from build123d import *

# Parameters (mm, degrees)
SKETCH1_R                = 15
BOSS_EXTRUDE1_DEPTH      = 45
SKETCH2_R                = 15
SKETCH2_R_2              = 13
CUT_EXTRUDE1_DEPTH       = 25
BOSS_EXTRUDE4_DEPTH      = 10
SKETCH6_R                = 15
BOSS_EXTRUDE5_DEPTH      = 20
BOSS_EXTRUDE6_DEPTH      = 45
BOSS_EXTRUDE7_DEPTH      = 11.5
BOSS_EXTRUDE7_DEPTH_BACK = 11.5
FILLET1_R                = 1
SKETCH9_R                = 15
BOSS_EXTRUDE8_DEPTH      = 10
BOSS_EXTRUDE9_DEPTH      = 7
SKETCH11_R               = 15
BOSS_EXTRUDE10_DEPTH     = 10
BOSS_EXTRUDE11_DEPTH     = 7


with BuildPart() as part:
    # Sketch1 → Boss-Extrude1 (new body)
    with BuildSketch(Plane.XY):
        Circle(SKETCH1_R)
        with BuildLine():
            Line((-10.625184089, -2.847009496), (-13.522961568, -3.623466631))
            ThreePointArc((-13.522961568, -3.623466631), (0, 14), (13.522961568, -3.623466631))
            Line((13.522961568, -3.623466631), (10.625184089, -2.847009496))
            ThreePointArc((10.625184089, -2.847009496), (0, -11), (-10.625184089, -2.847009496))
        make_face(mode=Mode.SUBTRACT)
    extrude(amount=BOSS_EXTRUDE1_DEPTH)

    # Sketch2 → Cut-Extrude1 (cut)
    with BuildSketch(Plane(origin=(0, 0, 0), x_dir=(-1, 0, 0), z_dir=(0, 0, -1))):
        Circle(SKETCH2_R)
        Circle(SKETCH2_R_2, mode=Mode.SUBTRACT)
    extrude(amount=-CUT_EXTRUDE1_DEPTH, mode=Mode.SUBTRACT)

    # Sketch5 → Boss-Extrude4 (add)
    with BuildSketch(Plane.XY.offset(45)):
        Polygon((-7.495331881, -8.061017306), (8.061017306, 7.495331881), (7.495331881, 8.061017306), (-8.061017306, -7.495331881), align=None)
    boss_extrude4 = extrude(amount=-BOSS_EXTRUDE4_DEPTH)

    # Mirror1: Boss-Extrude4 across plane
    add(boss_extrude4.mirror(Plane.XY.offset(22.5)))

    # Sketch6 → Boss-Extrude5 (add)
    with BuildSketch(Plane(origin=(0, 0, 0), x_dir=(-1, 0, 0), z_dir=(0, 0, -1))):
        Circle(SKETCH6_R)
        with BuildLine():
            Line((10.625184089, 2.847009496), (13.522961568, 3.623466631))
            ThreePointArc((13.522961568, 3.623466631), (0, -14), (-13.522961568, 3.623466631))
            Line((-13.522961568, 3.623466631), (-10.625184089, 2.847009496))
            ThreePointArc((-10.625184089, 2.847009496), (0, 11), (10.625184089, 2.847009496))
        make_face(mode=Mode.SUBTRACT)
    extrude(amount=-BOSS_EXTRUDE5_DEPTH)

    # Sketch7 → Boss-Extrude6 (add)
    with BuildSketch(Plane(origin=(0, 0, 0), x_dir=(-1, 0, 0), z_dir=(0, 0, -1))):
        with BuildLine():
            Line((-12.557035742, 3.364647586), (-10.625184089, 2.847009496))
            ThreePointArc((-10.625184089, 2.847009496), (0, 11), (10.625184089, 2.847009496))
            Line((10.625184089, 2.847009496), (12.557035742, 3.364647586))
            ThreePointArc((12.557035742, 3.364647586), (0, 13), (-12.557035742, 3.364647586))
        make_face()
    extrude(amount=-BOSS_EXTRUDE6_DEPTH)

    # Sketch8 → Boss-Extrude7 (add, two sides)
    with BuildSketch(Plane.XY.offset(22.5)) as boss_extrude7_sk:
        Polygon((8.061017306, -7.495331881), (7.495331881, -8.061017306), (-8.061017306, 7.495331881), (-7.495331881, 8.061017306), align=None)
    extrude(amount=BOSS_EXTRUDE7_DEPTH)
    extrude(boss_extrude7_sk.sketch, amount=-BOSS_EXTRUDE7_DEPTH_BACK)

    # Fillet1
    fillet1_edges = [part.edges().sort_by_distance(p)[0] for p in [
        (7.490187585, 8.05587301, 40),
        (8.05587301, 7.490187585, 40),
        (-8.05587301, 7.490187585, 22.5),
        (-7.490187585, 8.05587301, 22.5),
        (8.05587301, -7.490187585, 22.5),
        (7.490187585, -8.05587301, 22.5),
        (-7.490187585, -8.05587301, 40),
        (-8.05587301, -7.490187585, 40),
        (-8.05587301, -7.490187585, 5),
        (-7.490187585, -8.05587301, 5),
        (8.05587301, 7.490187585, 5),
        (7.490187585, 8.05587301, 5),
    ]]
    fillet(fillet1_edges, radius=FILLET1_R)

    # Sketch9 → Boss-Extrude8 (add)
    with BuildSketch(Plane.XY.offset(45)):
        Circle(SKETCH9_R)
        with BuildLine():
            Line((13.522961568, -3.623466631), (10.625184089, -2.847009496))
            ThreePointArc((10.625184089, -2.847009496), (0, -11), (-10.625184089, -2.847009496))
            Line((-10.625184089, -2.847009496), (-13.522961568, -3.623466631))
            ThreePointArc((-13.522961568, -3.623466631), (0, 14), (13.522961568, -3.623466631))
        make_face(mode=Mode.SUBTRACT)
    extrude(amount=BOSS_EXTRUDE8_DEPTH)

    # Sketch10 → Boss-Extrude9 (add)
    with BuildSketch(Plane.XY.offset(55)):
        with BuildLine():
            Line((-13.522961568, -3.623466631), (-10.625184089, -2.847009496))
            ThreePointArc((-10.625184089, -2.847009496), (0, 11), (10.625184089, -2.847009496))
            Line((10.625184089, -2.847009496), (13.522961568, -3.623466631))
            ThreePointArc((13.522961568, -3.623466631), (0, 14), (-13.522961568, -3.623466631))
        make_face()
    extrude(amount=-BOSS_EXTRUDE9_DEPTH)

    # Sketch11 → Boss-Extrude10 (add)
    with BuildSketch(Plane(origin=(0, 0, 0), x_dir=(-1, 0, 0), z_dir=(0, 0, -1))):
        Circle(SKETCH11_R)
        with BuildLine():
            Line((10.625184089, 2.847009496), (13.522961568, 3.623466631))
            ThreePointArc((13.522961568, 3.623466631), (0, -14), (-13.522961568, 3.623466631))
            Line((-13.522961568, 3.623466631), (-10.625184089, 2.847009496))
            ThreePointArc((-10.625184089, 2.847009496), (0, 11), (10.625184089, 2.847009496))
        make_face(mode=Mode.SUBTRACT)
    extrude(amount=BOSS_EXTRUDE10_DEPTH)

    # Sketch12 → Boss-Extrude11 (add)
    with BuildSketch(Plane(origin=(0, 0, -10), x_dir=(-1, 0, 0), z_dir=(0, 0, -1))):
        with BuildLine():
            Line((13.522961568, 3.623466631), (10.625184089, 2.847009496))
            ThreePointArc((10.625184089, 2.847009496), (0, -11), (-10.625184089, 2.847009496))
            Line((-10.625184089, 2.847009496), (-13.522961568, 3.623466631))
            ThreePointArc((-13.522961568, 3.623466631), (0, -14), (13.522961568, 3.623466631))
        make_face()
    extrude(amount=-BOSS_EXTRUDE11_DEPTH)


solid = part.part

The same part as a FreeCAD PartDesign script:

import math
import FreeCAD as App
import Part
import Sketcher
from FreeCAD import Vector
Q = App.Units.Quantity


def edges_at(feature, points):
    """Names of the edges that pass closest to the given points."""
    edges = feature.Shape.Edges
    near = lambda p: min(range(len(edges)), key=lambda i: edges[i].distToShape(Part.Vertex(*p))[0])
    return sorted({f"Edge{near(p) + 1}" for p in points})


def add_polygon(sketch, points):
    """Adds a closed chain of lines whose ends are joined by coincident constraints."""
    first, n = sketch.GeometryCount, len(points)
    for a, b in zip(points, points[1:] + points[:1]):
        sketch.addGeometry(Part.LineSegment(App.Vector(*a, 0), App.Vector(*b, 0)), False)
    for i in range(n):
        sketch.addConstraint(Sketcher.Constraint("Coincident", first + i, 2, first + (i + 1) % n, 1))

doc = App.newDocument("Part")
params = doc.addObject("Spreadsheet::Sheet", "Params")
for row, (alias, value) in enumerate([
    ("sketch1_diameter", "30 mm"),
    ("sketch1_radius", "11 mm"),
    ("sketch1_radius2", "14 mm"),
    ("pad1_length", "45 mm"),
    ("sketch2_diameter", "30 mm"),
    ("sketch2_diameter2", "26 mm"),
    ("pocket1_length", "25 mm"),
    ("sketch3_length", "22 mm"),
    ("sketch3_length2", "0.8 mm"),
    ("pad2_length", "10 mm"),
    ("sketch4_diameter", "30 mm"),
    ("sketch4_radius", "11 mm"),
    ("sketch4_radius2", "14 mm"),
    ("pad3_length", "20 mm"),
    ("sketch5_radius", "11 mm"),
    ("sketch5_radius2", "13 mm"),
    ("pad4_length", "45 mm"),
    ("sketch6_length", "22 mm"),
    ("sketch6_length2", "0.8 mm"),
    ("pad5_length", "11.5 mm"),
    ("pad5_length2", "11.5 mm"),
    ("fillet_radius", "1 mm"),
    ("sketch7_diameter", "30 mm"),
    ("sketch7_radius", "14 mm"),
    ("sketch7_radius2", "11 mm"),
    ("pad6_length", "10 mm"),
    ("sketch8_radius", "11 mm"),
    ("sketch8_radius2", "14 mm"),
    ("pad7_length", "7 mm"),
    ("sketch9_diameter", "30 mm"),
    ("sketch9_radius", "11 mm"),
    ("sketch9_radius2", "14 mm"),
    ("pad8_length", "10 mm"),
    ("sketch10_radius", "11 mm"),
    ("sketch10_radius2", "14 mm"),
    ("pad9_length", "7 mm"),
], start=1):
    params.set(f"A{row}", alias)
    params.set(f"B{row}", "=" + value)
    params.setAlias(f"B{row}", alias)

body = doc.addObject("PartDesign::Body", "Body")

sketch1 = doc.addObject("Sketcher::SketchObject", "Sketch")
body.addObject(sketch1)
sketch1.AttachmentSupport = (doc.XY_Plane, [""])
sketch1.MapMode = "FlatFace"
sketch1.addGeometry([
    Part.Circle(Vector(0, 0, 0), Vector(0, 0, 1), 15),
    Part.ArcOfCircle(Part.Circle(Vector(0, 0, 0), Vector(0, 0, 1), 11), math.radians(-165), math.radians(-15)),
    Part.LineSegment(Vector(-10.6, -2.8, 0), Vector(-13.5, -3.6, 0)),
    Part.ArcOfCircle(Part.Circle(Vector(0, 0, 0), Vector(0, 0, 1), 14), math.radians(-15), math.radians(195)),
    Part.LineSegment(Vector(13.5, -3.6, 0), Vector(10.6, -2.8, 0)),
], False)
sketch1.addConstraint([
    Sketcher.Constraint("Coincident", 1, 1, 2, 1),
    Sketcher.Constraint("Coincident", 2, 2, 3, 2),
    Sketcher.Constraint("Coincident", 3, 1, 4, 1),
    Sketcher.Constraint("Coincident", 4, 2, 1, 2),
    Sketcher.Constraint("Coincident", 0, 3, -1, 1),
    Sketcher.Constraint("Coincident", 1, 3, -1, 1),
    Sketcher.Constraint("Coincident", 3, 3, -1, 1),
    Sketcher.Constraint("Horizontal", 2, 2, 3, 1),
    Sketcher.Constraint("Horizontal", 1, 1, 4, 2),
    Sketcher.Constraint("Diameter", 0, Q("30 mm")),
    Sketcher.Constraint("Radius", 1, Q("11 mm")),
    Sketcher.Constraint("Radius", 3, Q("14 mm")),
    Sketcher.Constraint("Angle", 2, Q("-165 deg")),
    Sketcher.Constraint("DistanceY", 1, 1, -1, 1, Q("2.847009 mm")),
])
sketch1.setExpression("Constraints[9]", "Params.sketch1_diameter")
sketch1.setExpression("Constraints[10]", "Params.sketch1_radius")
sketch1.setExpression("Constraints[11]", "Params.sketch1_radius2")
pad1 = doc.addObject("PartDesign::Pad", "Pad")
body.addObject(pad1)
pad1.Profile = sketch1
pad1.setExpression("Length", "Params.pad1_length")

sketch2 = doc.addObject("Sketcher::SketchObject", "Sketch001")
body.addObject(sketch2)
sketch2.AttachmentSupport = (doc.XY_Plane, [""])
sketch2.MapMode = "FlatFace"
sketch2.addGeometry([
    Part.Circle(Vector(0, 0, 0), Vector(0, 0, 1), 15),
    Part.Circle(Vector(0, 0, 0), Vector(0, 0, 1), 13),
], False)
sketch2.addConstraint([
    Sketcher.Constraint("Coincident", 0, 3, -1, 1),
    Sketcher.Constraint("Coincident", 1, 3, -1, 1),
    Sketcher.Constraint("Diameter", 0, Q("30 mm")),
    Sketcher.Constraint("Diameter", 1, Q("26 mm")),
])
sketch2.setExpression("Constraints[2]", "Params.sketch2_diameter")
sketch2.setExpression("Constraints[3]", "Params.sketch2_diameter2")
pocket1 = doc.addObject("PartDesign::Pocket", "Pocket")
body.addObject(pocket1)
pocket1.Profile = sketch2
pocket1.setExpression("Length", "Params.pocket1_length")
pocket1.Reversed = True

sketch3 = doc.addObject("Sketcher::SketchObject", "Sketch002")
body.addObject(sketch3)
sketch3.AttachmentSupport = (doc.XY_Plane, [""])
sketch3.MapMode = "FlatFace"
sketch3.AttachmentOffset = App.Placement(Vector(0, 0, 45), App.Rotation())
add_polygon(sketch3, [(-7.5, -8.1), (8.1, 7.5), (7.5, 8.1), (-8.1, -7.5)])
sketch3.addConstraint([
    Sketcher.Constraint("Symmetric", 0, 2, 2, 2, -1, 1),
    Sketcher.Constraint("Symmetric", 1, 2, 3, 2, -1, 1),
    Sketcher.Constraint("Perpendicular", 0, 1),
    Sketcher.Constraint("Angle", 0, Q("45 deg")),
    Sketcher.Constraint("Distance", 0, Q("22 mm")),
    Sketcher.Constraint("Distance", 1, Q("0.8 mm")),
])
sketch3.setExpression("Constraints[8]", "Params.sketch3_length")
sketch3.setExpression("Constraints[9]", "Params.sketch3_length2")
pad2 = doc.addObject("PartDesign::Pad", "Pad001")
body.addObject(pad2)
pad2.Profile = sketch3
pad2.setExpression("Length", "Params.pad2_length")
pad2.Reversed = True
doc.recompute()

datumplane = doc.addObject("PartDesign::Plane", "DatumPlane")
body.addObject(datumplane)
datumplane.AttachmentSupport = (doc.XY_Plane, [""])
datumplane.MapMode = "FlatFace"
datumplane.AttachmentOffset = App.Placement(Vector(0, 0, 22.5), App.Rotation())
mirrored = doc.addObject("PartDesign::Mirrored", "Mirrored")
body.addObject(mirrored)
mirrored.Originals = [pad2]
mirrored.MirrorPlane = (datumplane, [""])
body.Tip = mirrored

sketch4 = doc.addObject("Sketcher::SketchObject", "Sketch003")
body.addObject(sketch4)
sketch4.AttachmentSupport = (doc.XY_Plane, [""])
sketch4.MapMode = "FlatFace"
sketch4.addGeometry([
    Part.Circle(Vector(0, 0, 0), Vector(0, 0, 1), 15),
    Part.ArcOfCircle(Part.Circle(Vector(0, 0, 0), Vector(0, 0, 1), 11), math.radians(15), math.radians(165)),
    Part.LineSegment(Vector(-10.6, 2.8, 0), Vector(-13.5, 3.6, 0)),
    Part.ArcOfCircle(Part.Circle(Vector(0, 0, 0), Vector(0, 0, 1), 14), math.radians(165), math.radians(375)),
    Part.LineSegment(Vector(13.5, 3.6, 0), Vector(10.6, 2.8, 0)),
], False)
sketch4.addConstraint([
    Sketcher.Constraint("Coincident", 1, 2, 2, 1),
    Sketcher.Constraint("Coincident", 2, 2, 3, 1),
    Sketcher.Constraint("Coincident", 3, 2, 4, 1),
    Sketcher.Constraint("Coincident", 4, 2, 1, 1),
    Sketcher.Constraint("Coincident", 0, 3, -1, 1),
    Sketcher.Constraint("Coincident", 1, 3, -1, 1),
    Sketcher.Constraint("Coincident", 3, 3, -1, 1),
    Sketcher.Constraint("Horizontal", 2, 2, 3, 2),
    Sketcher.Constraint("Horizontal", 1, 2, 4, 2),
    Sketcher.Constraint("Diameter", 0, Q("30 mm")),
    Sketcher.Constraint("Radius", 1, Q("11 mm")),
    Sketcher.Constraint("Radius", 3, Q("14 mm")),
    Sketcher.Constraint("Angle", 2, Q("165 deg")),
    Sketcher.Constraint("DistanceY", -1, 1, 1, 2, Q("2.847009 mm")),
])
sketch4.setExpression("Constraints[9]", "Params.sketch4_diameter")
sketch4.setExpression("Constraints[10]", "Params.sketch4_radius")
sketch4.setExpression("Constraints[11]", "Params.sketch4_radius2")
pad3 = doc.addObject("PartDesign::Pad", "Pad002")
body.addObject(pad3)
pad3.Profile = sketch4
pad3.setExpression("Length", "Params.pad3_length")

sketch5 = doc.addObject("Sketcher::SketchObject", "Sketch004")
body.addObject(sketch5)
sketch5.AttachmentSupport = (doc.XY_Plane, [""])
sketch5.MapMode = "FlatFace"
sketch5.addGeometry([
    Part.LineSegment(Vector(12.6, 3.4, 0), Vector(10.6, 2.8, 0)),
    Part.ArcOfCircle(Part.Circle(Vector(0, 0, 0), Vector(0, 0, 1), 11), math.radians(15), math.radians(165)),
    Part.LineSegment(Vector(-10.6, 2.8, 0), Vector(-12.6, 3.4, 0)),
    Part.ArcOfCircle(Part.Circle(Vector(0, 0, 0), Vector(0, 0, 1), 13), math.radians(15), math.radians(165)),
], False)
sketch5.addConstraint([
    Sketcher.Constraint("Coincident", 0, 2, 1, 1),
    Sketcher.Constraint("Coincident", 1, 2, 2, 1),
    Sketcher.Constraint("Coincident", 2, 2, 3, 2),
    Sketcher.Constraint("Coincident", 3, 1, 0, 1),
    Sketcher.Constraint("Coincident", 1, 3, -1, 1),
    Sketcher.Constraint("Coincident", 3, 3, -1, 1),
    Sketcher.Constraint("Horizontal", 0, 2, 1, 2),
    Sketcher.Constraint("Horizontal", 2, 2, 3, 1),
    Sketcher.Constraint("Radius", 1, Q("11 mm")),
    Sketcher.Constraint("Radius", 3, Q("13 mm")),
    Sketcher.Constraint("Angle", 0, Q("-165 deg")),
    Sketcher.Constraint("DistanceY", -1, 1, 0, 2, Q("2.847009 mm")),
])
sketch5.setExpression("Constraints[8]", "Params.sketch5_radius")
sketch5.setExpression("Constraints[9]", "Params.sketch5_radius2")
pad4 = doc.addObject("PartDesign::Pad", "Pad003")
body.addObject(pad4)
pad4.Profile = sketch5
pad4.setExpression("Length", "Params.pad4_length")

sketch6 = doc.addObject("Sketcher::SketchObject", "Sketch005")
body.addObject(sketch6)
sketch6.AttachmentSupport = (doc.XY_Plane, [""])
sketch6.MapMode = "FlatFace"
sketch6.AttachmentOffset = App.Placement(Vector(0, 0, 22.5), App.Rotation())
add_polygon(sketch6, [(7.5, -8.1), (8.1, -7.5), (-7.5, 8.1), (-8.1, 7.5)])
sketch6.addConstraint([
    Sketcher.Constraint("Symmetric", 0, 2, 2, 2, -1, 1),
    Sketcher.Constraint("Symmetric", 1, 2, 3, 2, -1, 1),
    Sketcher.Constraint("Perpendicular", 0, 1),
    Sketcher.Constraint("Angle", 0, Q("45 deg")),
    Sketcher.Constraint("Distance", 1, Q("22 mm")),
    Sketcher.Constraint("Distance", 0, Q("0.8 mm")),
])
sketch6.setExpression("Constraints[8]", "Params.sketch6_length")
sketch6.setExpression("Constraints[9]", "Params.sketch6_length2")
pad5 = doc.addObject("PartDesign::Pad", "Pad004")
body.addObject(pad5)
pad5.Profile = sketch6
pad5.Type = "TwoLengths"
pad5.setExpression("Length", "Params.pad5_length")
pad5.setExpression("Length2", "Params.pad5_length2")
doc.recompute()

fillet = doc.addObject("PartDesign::Fillet", "Fillet")
body.addObject(fillet)
fillet.Base = (pad5, edges_at(pad5, [
    (7.49, 8.056, 40),
    (8.056, 7.49, 40),
    (-8.056, 7.49, 22.5),
    (-7.49, 8.056, 22.5),
    (8.056, -7.49, 22.5),
    (7.49, -8.056, 22.5),
    (-7.49, -8.056, 40),
    (-8.056, -7.49, 40),
    (-8.056, -7.49, 5),
    (-7.49, -8.056, 5),
    (8.056, 7.49, 5),
    (7.49, 8.056, 5),
]))
fillet.setExpression("Radius", "Params.fillet_radius")

sketch7 = doc.addObject("Sketcher::SketchObject", "Sketch006")
body.addObject(sketch7)
sketch7.AttachmentSupport = (doc.XY_Plane, [""])
sketch7.MapMode = "FlatFace"
sketch7.AttachmentOffset = App.Placement(Vector(0, 0, 45), App.Rotation())
sketch7.addGeometry([
    Part.Circle(Vector(0, 0, 0), Vector(0, 0, 1), 15),
    Part.ArcOfCircle(Part.Circle(Vector(0, 0, 0), Vector(0, 0, 1), 14), math.radians(-15), math.radians(195)),
    Part.LineSegment(Vector(13.5, -3.6, 0), Vector(10.6, -2.8, 0)),
    Part.ArcOfCircle(Part.Circle(Vector(0, 0, 0), Vector(0, 0, 1), 11), math.radians(-165), math.radians(-15)),
    Part.LineSegment(Vector(-10.6, -2.8, 0), Vector(-13.5, -3.6, 0)),
], False)
sketch7.addConstraint([
    Sketcher.Constraint("Coincident", 1, 1, 2, 1),
    Sketcher.Constraint("Coincident", 2, 2, 3, 2),
    Sketcher.Constraint("Coincident", 3, 1, 4, 1),
    Sketcher.Constraint("Coincident", 4, 2, 1, 2),
    Sketcher.Constraint("Coincident", 0, 3, -1, 1),
    Sketcher.Constraint("Coincident", 1, 3, -1, 1),
    Sketcher.Constraint("Coincident", 3, 3, -1, 1),
    Sketcher.Constraint("Horizontal", 2, 2, 3, 1),
    Sketcher.Constraint("Horizontal", 1, 1, 4, 2),
    Sketcher.Constraint("Diameter", 0, Q("30 mm")),
    Sketcher.Constraint("Radius", 1, Q("14 mm")),
    Sketcher.Constraint("Radius", 3, Q("11 mm")),
    Sketcher.Constraint("Angle", 2, Q("165 deg")),
    Sketcher.Constraint("DistanceX", -1, 1, 1, 1, Q("13.522962 mm")),
])
sketch7.setExpression("Constraints[9]", "Params.sketch7_diameter")
sketch7.setExpression("Constraints[10]", "Params.sketch7_radius")
sketch7.setExpression("Constraints[11]", "Params.sketch7_radius2")
pad6 = doc.addObject("PartDesign::Pad", "Pad005")
body.addObject(pad6)
pad6.Profile = sketch7
pad6.setExpression("Length", "Params.pad6_length")

sketch8 = doc.addObject("Sketcher::SketchObject", "Sketch007")
body.addObject(sketch8)
sketch8.AttachmentSupport = (doc.XY_Plane, [""])
sketch8.MapMode = "FlatFace"
sketch8.AttachmentOffset = App.Placement(Vector(0, 0, 55), App.Rotation())
sketch8.addGeometry([
    Part.LineSegment(Vector(-13.5, -3.6, 0), Vector(-10.6, -2.8, 0)),
    Part.ArcOfCircle(Part.Circle(Vector(0, 0, 0), Vector(0, 0, 1), 11), math.radians(-15), math.radians(195)),
    Part.LineSegment(Vector(10.6, -2.8, 0), Vector(13.5, -3.6, 0)),
    Part.ArcOfCircle(Part.Circle(Vector(0, 0, 0), Vector(0, 0, 1), 14), math.radians(-15), math.radians(195)),
], False)
sketch8.addConstraint([
    Sketcher.Constraint("Coincident", 0, 2, 1, 2),
    Sketcher.Constraint("Coincident", 1, 1, 2, 1),
    Sketcher.Constraint("Coincident", 2, 2, 3, 1),
    Sketcher.Constraint("Coincident", 3, 2, 0, 1),
    Sketcher.Constraint("Coincident", 1, 3, -1, 1),
    Sketcher.Constraint("Coincident", 3, 3, -1, 1),
    Sketcher.Constraint("Horizontal", 0, 2, 1, 1),
    Sketcher.Constraint("Horizontal", 2, 2, 3, 2),
    Sketcher.Constraint("Radius", 1, Q("11 mm")),
    Sketcher.Constraint("Radius", 3, Q("14 mm")),
    Sketcher.Constraint("Angle", 0, Q("15 deg")),
    Sketcher.Constraint("DistanceY", 0, 2, -1, 1, Q("2.847009 mm")),
])
sketch8.setExpression("Constraints[8]", "Params.sketch8_radius")
sketch8.setExpression("Constraints[9]", "Params.sketch8_radius2")
pad7 = doc.addObject("PartDesign::Pad", "Pad006")
body.addObject(pad7)
pad7.Profile = sketch8
pad7.setExpression("Length", "Params.pad7_length")
pad7.Reversed = True

sketch9 = doc.addObject("Sketcher::SketchObject", "Sketch008")
body.addObject(sketch9)
sketch9.AttachmentSupport = (doc.XY_Plane, [""])
sketch9.MapMode = "FlatFace"
sketch9.addGeometry([
    Part.Circle(Vector(0, 0, 0), Vector(0, 0, 1), 15),
    Part.ArcOfCircle(Part.Circle(Vector(0, 0, 0), Vector(0, 0, 1), 11), math.radians(15), math.radians(165)),
    Part.LineSegment(Vector(-10.6, 2.8, 0), Vector(-13.5, 3.6, 0)),
    Part.ArcOfCircle(Part.Circle(Vector(0, 0, 0), Vector(0, 0, 1), 14), math.radians(165), math.radians(375)),
    Part.LineSegment(Vector(13.5, 3.6, 0), Vector(10.6, 2.8, 0)),
], False)
sketch9.addConstraint([
    Sketcher.Constraint("Coincident", 1, 2, 2, 1),
    Sketcher.Constraint("Coincident", 2, 2, 3, 1),
    Sketcher.Constraint("Coincident", 3, 2, 4, 1),
    Sketcher.Constraint("Coincident", 4, 2, 1, 1),
    Sketcher.Constraint("Coincident", 0, 3, -1, 1),
    Sketcher.Constraint("Coincident", 1, 3, -1, 1),
    Sketcher.Constraint("Coincident", 3, 3, -1, 1),
    Sketcher.Constraint("Horizontal", 2, 2, 3, 2),
    Sketcher.Constraint("Horizontal", 1, 2, 4, 2),
    Sketcher.Constraint("Diameter", 0, Q("30 mm")),
    Sketcher.Constraint("Radius", 1, Q("11 mm")),
    Sketcher.Constraint("Radius", 3, Q("14 mm")),
    Sketcher.Constraint("Angle", 2, Q("165 deg")),
    Sketcher.Constraint("DistanceY", -1, 1, 1, 2, Q("2.847009 mm")),
])
sketch9.setExpression("Constraints[9]", "Params.sketch9_diameter")
sketch9.setExpression("Constraints[10]", "Params.sketch9_radius")
sketch9.setExpression("Constraints[11]", "Params.sketch9_radius2")
pad8 = doc.addObject("PartDesign::Pad", "Pad007")
body.addObject(pad8)
pad8.Profile = sketch9
pad8.setExpression("Length", "Params.pad8_length")
pad8.Reversed = True

sketch10 = doc.addObject("Sketcher::SketchObject", "Sketch009")
body.addObject(sketch10)
sketch10.AttachmentSupport = (doc.XY_Plane, [""])
sketch10.MapMode = "FlatFace"
sketch10.AttachmentOffset = App.Placement(Vector(0, 0, -10), App.Rotation())
sketch10.addGeometry([
    Part.LineSegment(Vector(-13.5, 3.6, 0), Vector(-10.6, 2.8, 0)),
    Part.ArcOfCircle(Part.Circle(Vector(0, 0, 0), Vector(0, 0, 1), 11), math.radians(165), math.radians(375)),
    Part.LineSegment(Vector(10.6, 2.8, 0), Vector(13.5, 3.6, 0)),
    Part.ArcOfCircle(Part.Circle(Vector(0, 0, 0), Vector(0, 0, 1), 14), math.radians(165), math.radians(375)),
], False)
sketch10.addConstraint([
    Sketcher.Constraint("Coincident", 0, 2, 1, 1),
    Sketcher.Constraint("Coincident", 1, 2, 2, 1),
    Sketcher.Constraint("Coincident", 2, 2, 3, 2),
    Sketcher.Constraint("Coincident", 3, 1, 0, 1),
    Sketcher.Constraint("Coincident", 1, 3, -1, 1),
    Sketcher.Constraint("Coincident", 3, 3, -1, 1),
    Sketcher.Constraint("Horizontal", 0, 2, 1, 2),
    Sketcher.Constraint("Horizontal", 2, 2, 3, 1),
    Sketcher.Constraint("Radius", 1, Q("11 mm")),
    Sketcher.Constraint("Radius", 3, Q("14 mm")),
    Sketcher.Constraint("Angle", 0, Q("-15 deg")),
    Sketcher.Constraint("DistanceY", -1, 1, 0, 2, Q("2.847009 mm")),
])
sketch10.setExpression("Constraints[8]", "Params.sketch10_radius")
sketch10.setExpression("Constraints[9]", "Params.sketch10_radius2")
pad9 = doc.addObject("PartDesign::Pad", "Pad008")
body.addObject(pad9)
pad9.Profile = sketch10
pad9.setExpression("Length", "Params.pad9_length")

doc.recompute()
